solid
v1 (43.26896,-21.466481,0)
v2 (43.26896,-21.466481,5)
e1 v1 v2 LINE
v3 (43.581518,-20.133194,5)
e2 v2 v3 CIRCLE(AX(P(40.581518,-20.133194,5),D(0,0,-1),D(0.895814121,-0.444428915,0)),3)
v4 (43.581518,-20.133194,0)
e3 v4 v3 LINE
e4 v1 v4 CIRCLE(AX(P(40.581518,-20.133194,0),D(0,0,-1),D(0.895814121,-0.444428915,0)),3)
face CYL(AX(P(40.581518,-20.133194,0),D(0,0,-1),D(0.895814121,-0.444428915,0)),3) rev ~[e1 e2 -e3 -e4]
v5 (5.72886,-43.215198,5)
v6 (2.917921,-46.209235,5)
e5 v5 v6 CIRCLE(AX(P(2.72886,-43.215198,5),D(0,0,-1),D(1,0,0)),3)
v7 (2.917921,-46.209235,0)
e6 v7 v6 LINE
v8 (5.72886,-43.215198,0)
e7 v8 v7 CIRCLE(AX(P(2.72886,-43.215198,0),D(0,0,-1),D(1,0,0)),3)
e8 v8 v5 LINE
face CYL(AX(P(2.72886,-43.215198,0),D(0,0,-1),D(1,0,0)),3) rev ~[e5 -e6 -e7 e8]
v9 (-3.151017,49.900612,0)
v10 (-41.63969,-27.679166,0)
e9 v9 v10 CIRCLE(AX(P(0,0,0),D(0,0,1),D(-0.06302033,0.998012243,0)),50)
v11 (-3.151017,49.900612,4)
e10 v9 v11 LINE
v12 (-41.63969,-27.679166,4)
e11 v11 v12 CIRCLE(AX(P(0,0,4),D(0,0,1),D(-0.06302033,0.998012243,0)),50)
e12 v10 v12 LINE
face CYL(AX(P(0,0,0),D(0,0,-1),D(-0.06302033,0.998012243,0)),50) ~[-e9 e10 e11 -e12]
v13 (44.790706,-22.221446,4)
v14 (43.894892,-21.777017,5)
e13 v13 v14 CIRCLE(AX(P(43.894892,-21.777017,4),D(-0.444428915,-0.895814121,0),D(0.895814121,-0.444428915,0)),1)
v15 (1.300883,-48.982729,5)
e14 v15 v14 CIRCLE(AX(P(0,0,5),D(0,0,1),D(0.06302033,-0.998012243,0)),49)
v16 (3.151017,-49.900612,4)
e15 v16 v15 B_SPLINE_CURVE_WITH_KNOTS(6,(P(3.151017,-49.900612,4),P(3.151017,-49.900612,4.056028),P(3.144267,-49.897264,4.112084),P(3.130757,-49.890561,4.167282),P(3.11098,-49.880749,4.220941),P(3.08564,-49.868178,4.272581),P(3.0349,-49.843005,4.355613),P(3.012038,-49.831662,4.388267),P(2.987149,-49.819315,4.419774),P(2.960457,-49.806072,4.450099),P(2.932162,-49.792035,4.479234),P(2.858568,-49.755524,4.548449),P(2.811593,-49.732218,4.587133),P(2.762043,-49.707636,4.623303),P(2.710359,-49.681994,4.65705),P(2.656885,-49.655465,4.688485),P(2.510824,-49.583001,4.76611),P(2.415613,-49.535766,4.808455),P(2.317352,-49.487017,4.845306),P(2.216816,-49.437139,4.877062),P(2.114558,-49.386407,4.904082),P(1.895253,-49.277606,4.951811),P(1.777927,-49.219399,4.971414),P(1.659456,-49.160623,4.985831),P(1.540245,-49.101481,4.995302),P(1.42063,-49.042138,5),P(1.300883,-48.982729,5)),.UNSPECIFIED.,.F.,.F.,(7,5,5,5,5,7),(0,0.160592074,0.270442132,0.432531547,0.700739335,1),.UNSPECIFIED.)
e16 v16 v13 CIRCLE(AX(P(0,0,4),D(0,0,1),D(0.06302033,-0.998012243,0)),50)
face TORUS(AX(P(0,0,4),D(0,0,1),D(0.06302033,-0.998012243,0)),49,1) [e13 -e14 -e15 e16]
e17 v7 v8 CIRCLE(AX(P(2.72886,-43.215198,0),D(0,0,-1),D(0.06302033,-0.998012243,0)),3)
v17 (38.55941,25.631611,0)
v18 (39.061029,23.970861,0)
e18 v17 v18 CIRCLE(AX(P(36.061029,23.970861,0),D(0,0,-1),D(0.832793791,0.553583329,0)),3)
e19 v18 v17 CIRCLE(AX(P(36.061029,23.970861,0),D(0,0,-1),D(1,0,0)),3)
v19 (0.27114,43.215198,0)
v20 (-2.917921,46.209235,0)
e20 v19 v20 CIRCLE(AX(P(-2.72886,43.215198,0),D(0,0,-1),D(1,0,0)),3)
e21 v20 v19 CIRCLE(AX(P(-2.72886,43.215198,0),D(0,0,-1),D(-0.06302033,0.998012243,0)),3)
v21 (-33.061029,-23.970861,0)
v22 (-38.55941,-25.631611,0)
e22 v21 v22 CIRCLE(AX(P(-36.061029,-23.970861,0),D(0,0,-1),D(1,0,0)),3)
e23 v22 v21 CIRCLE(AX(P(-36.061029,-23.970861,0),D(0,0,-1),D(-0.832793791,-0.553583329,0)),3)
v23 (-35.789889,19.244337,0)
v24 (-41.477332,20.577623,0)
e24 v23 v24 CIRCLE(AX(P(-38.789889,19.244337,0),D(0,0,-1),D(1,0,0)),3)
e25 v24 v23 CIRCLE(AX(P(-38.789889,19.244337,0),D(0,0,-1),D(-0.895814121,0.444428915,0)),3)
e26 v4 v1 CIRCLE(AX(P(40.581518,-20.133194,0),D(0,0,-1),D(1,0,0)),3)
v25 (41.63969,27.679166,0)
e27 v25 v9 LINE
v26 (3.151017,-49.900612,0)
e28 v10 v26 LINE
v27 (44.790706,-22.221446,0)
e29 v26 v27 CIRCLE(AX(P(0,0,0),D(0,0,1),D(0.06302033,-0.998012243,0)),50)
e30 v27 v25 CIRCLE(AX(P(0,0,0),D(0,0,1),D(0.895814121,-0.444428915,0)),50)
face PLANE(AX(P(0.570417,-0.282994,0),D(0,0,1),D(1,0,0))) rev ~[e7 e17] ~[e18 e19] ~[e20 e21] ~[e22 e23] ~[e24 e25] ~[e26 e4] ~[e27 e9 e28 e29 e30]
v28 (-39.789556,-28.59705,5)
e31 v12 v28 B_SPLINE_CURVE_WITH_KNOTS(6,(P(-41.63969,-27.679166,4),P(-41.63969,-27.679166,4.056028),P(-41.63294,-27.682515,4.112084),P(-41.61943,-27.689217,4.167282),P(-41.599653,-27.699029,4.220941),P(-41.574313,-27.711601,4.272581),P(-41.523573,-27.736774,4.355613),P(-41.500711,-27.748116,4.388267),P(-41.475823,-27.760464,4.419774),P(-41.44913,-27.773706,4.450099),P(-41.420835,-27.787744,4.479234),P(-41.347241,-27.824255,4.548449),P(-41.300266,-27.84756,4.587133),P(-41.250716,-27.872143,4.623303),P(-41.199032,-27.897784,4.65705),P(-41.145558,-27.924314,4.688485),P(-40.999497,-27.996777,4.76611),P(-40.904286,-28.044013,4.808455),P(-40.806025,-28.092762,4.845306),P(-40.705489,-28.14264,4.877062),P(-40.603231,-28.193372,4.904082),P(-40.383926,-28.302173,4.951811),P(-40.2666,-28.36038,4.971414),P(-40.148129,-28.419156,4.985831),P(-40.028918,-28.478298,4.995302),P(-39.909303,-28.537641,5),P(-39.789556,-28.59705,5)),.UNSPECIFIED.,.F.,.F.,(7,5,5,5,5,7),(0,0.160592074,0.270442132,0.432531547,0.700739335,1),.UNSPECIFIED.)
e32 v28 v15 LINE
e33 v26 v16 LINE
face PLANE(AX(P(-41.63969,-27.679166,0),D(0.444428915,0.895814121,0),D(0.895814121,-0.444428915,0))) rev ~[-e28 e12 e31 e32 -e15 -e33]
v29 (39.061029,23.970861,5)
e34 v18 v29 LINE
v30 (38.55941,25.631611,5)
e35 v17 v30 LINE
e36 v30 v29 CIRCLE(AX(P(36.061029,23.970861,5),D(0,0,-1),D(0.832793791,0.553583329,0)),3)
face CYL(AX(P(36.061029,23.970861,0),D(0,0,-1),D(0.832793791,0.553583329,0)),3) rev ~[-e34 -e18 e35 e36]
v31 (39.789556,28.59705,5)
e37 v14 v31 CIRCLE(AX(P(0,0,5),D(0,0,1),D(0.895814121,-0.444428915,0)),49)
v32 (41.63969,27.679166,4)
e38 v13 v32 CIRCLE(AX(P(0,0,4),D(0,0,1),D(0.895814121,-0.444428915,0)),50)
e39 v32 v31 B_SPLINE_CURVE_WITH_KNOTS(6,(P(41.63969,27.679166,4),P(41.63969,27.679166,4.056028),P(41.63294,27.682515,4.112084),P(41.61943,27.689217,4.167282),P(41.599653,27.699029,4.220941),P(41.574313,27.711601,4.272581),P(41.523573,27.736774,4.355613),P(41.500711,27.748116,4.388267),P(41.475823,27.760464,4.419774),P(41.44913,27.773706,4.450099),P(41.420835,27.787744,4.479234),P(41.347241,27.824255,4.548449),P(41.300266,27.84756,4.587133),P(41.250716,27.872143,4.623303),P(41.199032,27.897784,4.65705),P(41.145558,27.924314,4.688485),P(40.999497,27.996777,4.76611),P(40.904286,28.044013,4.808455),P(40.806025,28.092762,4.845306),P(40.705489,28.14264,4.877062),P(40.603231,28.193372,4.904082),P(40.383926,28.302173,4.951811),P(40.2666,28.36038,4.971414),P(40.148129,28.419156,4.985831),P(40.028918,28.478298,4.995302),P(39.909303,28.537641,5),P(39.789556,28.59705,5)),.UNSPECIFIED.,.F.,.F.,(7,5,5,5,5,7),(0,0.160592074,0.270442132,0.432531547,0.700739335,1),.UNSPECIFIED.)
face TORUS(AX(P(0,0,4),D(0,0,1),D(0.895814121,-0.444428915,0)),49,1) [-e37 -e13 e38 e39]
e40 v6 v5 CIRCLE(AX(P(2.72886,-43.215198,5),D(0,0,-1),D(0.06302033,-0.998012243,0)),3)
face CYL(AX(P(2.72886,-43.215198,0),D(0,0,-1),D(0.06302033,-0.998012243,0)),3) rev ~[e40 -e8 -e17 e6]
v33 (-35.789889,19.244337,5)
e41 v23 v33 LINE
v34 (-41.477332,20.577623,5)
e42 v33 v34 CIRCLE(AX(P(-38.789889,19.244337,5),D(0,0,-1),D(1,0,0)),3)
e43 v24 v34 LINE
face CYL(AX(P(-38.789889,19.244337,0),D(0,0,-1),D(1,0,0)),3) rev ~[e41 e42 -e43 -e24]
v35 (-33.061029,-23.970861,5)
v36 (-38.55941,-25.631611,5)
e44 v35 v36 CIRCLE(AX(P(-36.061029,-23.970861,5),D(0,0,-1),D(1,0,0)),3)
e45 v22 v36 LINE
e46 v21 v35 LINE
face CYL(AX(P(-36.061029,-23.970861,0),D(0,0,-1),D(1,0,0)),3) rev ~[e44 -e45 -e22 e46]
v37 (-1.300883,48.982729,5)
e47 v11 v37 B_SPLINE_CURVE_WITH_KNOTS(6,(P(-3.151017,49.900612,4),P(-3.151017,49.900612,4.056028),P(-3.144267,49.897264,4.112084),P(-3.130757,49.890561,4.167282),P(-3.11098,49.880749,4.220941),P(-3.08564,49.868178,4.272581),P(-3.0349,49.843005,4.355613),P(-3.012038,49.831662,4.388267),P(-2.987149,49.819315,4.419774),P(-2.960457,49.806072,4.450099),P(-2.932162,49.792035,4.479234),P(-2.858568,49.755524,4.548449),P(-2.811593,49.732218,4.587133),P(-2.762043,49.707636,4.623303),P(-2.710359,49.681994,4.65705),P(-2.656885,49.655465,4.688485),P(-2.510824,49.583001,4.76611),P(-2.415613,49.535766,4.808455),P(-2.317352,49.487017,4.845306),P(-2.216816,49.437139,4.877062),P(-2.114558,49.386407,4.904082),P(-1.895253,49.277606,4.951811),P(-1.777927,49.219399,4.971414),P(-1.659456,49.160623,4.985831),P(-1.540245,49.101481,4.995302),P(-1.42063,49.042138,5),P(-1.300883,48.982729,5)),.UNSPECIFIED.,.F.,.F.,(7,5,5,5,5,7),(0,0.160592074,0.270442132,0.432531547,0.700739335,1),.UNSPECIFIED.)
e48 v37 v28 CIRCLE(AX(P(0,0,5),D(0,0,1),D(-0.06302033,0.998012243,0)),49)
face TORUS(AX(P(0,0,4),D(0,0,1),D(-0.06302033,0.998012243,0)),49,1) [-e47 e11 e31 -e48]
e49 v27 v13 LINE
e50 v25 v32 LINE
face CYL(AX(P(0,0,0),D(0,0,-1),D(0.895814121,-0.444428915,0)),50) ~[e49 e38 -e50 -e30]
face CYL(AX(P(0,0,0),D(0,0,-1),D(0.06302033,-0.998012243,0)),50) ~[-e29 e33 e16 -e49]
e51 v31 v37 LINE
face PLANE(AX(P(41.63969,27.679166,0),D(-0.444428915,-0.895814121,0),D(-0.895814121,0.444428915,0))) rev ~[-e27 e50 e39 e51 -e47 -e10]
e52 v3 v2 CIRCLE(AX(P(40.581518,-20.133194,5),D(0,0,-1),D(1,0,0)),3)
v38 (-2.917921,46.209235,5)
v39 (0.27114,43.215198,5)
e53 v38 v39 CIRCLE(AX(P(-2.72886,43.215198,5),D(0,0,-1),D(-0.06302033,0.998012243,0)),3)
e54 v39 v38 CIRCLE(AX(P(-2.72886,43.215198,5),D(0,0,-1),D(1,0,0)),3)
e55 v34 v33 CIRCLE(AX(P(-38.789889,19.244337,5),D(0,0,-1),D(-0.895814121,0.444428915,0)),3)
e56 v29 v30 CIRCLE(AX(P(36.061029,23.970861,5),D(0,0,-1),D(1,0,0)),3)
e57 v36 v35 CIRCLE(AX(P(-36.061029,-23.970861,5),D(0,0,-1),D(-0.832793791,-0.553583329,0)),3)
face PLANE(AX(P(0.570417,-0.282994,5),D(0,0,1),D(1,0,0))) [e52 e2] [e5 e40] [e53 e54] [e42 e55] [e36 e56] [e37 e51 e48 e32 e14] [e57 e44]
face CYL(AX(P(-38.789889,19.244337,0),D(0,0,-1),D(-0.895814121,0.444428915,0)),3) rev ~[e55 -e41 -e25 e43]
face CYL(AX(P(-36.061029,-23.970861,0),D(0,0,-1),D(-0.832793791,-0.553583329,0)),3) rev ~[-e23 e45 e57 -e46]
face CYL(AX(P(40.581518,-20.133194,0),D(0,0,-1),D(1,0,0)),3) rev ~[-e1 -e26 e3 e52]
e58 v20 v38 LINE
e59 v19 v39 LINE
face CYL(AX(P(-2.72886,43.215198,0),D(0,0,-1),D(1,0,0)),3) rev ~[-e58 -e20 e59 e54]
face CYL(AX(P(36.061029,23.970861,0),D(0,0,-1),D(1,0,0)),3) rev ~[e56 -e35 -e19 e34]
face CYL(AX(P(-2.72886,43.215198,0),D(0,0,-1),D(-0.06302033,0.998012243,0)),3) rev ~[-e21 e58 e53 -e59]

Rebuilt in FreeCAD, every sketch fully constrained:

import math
import FreeCAD as App
import Part
import Sketcher
Q = App.Units.Quantity


def edges_at(feature, points):
    """Names of the edges that pass closest to the given points."""
    edges = feature.Shape.Edges
    near = lambda p: min(range(len(edges)), key=lambda i: edges[i].distToShape(Part.Vertex(*p))[0])
    return sorted({f"Edge{near(p) + 1}" for p in points})

doc = App.newDocument("Part")
params = doc.addObject("Spreadsheet::Sheet", "Params")
for row, (alias, value) in enumerate([
    ("sketch1_radius", "50 mm"),
    ("sketch1_radius2", "3 mm"),
    ("sketch1_length", "50 mm"),
    ("pad1_length", "5 mm"),
    ("fillet_radius", "1 mm"),
], start=1):
    params.set(f"A{row}", alias)
    params.set(f"B{row}", "=" + value)
    params.setAlias(f"B{row}", alias)

body = doc.addObject("PartDesign::Body", "Body")

sketch1 = body.newObject("Sketcher::SketchObject", "Sketch")
sketch1.AttachmentSupport = (doc.getObject("XY_Plane"), [""])
sketch1.MapMode = "FlatFace"
sketch1.addGeometry([
    Part.LineSegment(App.Vector(41.63969, 27.679166, 0), App.Vector(-3.151017, 49.900612, 0)),
    Part.ArcOfCircle(Part.Circle(App.Vector(0, 0, 0), App.Vector(0, 0, 1), 50), math.radians(93.613193), math.radians(213.613193)),
    Part.LineSegment(App.Vector(-41.63969, -27.679166, 0), App.Vector(3.151017, -49.900612, 0)),
    Part.ArcOfCircle(Part.Circle(App.Vector(0, 0, 0), App.Vector(0, 0, 1), 50), math.radians(-86.386807), math.radians(-26.386807)),
    Part.ArcOfCircle(Part.Circle(App.Vector(0, 0, 0), App.Vector(0, 0, 1), 50), math.radians(-26.386807), math.radians(33.613193)),
    Part.ArcOfCircle(Part.Circle(App.Vector(-36.061029, -23.970861, 0), App.Vector(0, 0, 1), 3), math.radians(0), math.radians(213.613193)),
    Part.ArcOfCircle(Part.Circle(App.Vector(-36.061029, -23.970861, 0), App.Vector(0, 0, 1), 3), math.radians(-146.386807), math.radians(0)),
    Part.ArcOfCircle(Part.Circle(App.Vector(2.72886, -43.215198, 0), App.Vector(0, 0, 1), 3), math.radians(0), math.radians(273.613193)),
    Part.ArcOfCircle(Part.Circle(App.Vector(2.72886, -43.215198, 0), App.Vector(0, 0, 1), 3), math.radians(-86.386807), math.radians(0)),
    Part.ArcOfCircle(Part.Circle(App.Vector(40.581518, -20.133194, 0), App.Vector(0, 0, 1), 3), math.radians(0), math.radians(333.613193)),
    Part.ArcOfCircle(Part.Circle(App.Vector(40.581518, -20.133194, 0), App.Vector(0, 0, 1), 3), math.radians(-26.386807), math.radians(0)),
    Part.ArcOfCircle(Part.Circle(App.Vector(-38.789889, 19.244337, 0), App.Vector(0, 0, 1), 3), math.radians(153.613193), math.radians(360)),
    Part.ArcOfCircle(Part.Circle(App.Vector(-38.789889, 19.244337, 0), App.Vector(0, 0, 1), 3), math.radians(0), math.radians(153.613193)),
    Part.ArcOfCircle(Part.Circle(App.Vector(-2.72886, 43.215198, 0), App.Vector(0, 0, 1), 3), math.radians(0), math.radians(93.613193)),
    Part.ArcOfCircle(Part.Circle(App.Vector(-2.72886, 43.215198, 0), App.Vector(0, 0, 1), 3), math.radians(93.613193), math.radians(360)),
    Part.ArcOfCircle(Part.Circle(App.Vector(36.061029, 23.970861, 0), App.Vector(0, 0, 1), 3), math.radians(0), math.radians(33.613193)),
    Part.ArcOfCircle(Part.Circle(App.Vector(36.061029, 23.970861, 0), App.Vector(0, 0, 1), 3), math.radians(33.613193), math.radians(360)),
], False)
sketch1.addConstraint([
    Sketcher.Constraint("Coincident", 0, 2, 1, 1),
    Sketcher.Constraint("Coincident", 1, 2, 2, 1),
    Sketcher.Constraint("Coincident", 2, 2, 3, 1),
    Sketcher.Constraint("Tangent", 3, 2, 4, 1),
    Sketcher.Constraint("Coincident", 4, 2, 0, 1),
    Sketcher.Constraint("Tangent", 5, 1, 6, 2),
    Sketcher.Constraint("Coincident", 6, 1, 5, 2),
    Sketcher.Constraint("Tangent", 7, 1, 8, 2),
    Sketcher.Constraint("Coincident", 8, 1, 7, 2),
    Sketcher.Constraint("Tangent", 9, 1, 10, 2),
    Sketcher.Constraint("Coincident", 10, 1, 9, 2),
    Sketcher.Constraint("Tangent", 11, 1, 12, 2),
    Sketcher.Constraint("Coincident", 12, 1, 11, 2),
    Sketcher.Constraint("Tangent", 13, 1, 14, 2),
    Sketcher.Constraint("Coincident", 14, 1, 13, 2),
    Sketcher.Constraint("Tangent", 15, 1, 16, 2),
    Sketcher.Constraint("Coincident", 16, 1, 15, 2),
    Sketcher.Constraint("Coincident", 1, 3, -1, 1),
    Sketcher.Constraint("Coincident", 3, 3, -1, 1),
    Sketcher.Constraint("Equal", 1, 3),
    Sketcher.Constraint("Equal", 3, 4),
    Sketcher.Constraint("Equal", 6, 7),
    Sketcher.Constraint("Equal", 8, 9),
    Sketcher.Constraint("Equal", 10, 11),
    Sketcher.Constraint("Equal", 12, 13),
    Sketcher.Constraint("Equal", 14, 15),
    Sketcher.Constraint("Symmetric", 7, 3, 13, 3, -1, 1),
    Sketcher.Constraint("Symmetric", 5, 3, 15, 3, -1, 1),
    Sketcher.Constraint("Parallel", 0, 2),
    Sketcher.Constraint("Horizontal", 6, 3, 5, 1),
    Sketcher.Constraint("Horizontal", 8, 3, 7, 1),
    Sketcher.Constraint("Horizontal", 10, 3, 9, 1),
    Sketcher.Constraint("Horizontal", 11, 3, 12, 1),
    Sketcher.Constraint("Horizontal", 14, 3, 13, 1),
    Sketcher.Constraint("Horizontal", 16, 3, 15, 1),
    Sketcher.Constraint("Equal", 0, 2),
    Sketcher.Constraint("Radius", 1, Q("50 mm")),
    Sketcher.Constraint("Radius", 5, Q("3 mm")),
    Sketcher.Constraint("Distance", 0, Q("50 mm")),
    Sketcher.Constraint("DistanceX", 1, 2, 11, 3, Q("2.8498 mm")),
    Sketcher.Constraint("DistanceX", 2, 2, 10, 3, Q("37.430501 mm")),
    Sketcher.Constraint("DistanceX", 7, 1, 10, 1, Q("37.5401 mm")),
    Sketcher.Constraint("DistanceY", 12, 1, 14, 1, Q("26.964898 mm")),
    Sketcher.Constraint("DistanceX", 5, 3, -1, 1, Q("36.061029 mm")),
    Sketcher.Constraint("DistanceY", 5, 3, -1, 1, Q("23.970861 mm")),
    Sketcher.Constraint("DistanceX", -1, 1, 7, 3, Q("2.72886 mm")),
    Sketcher.Constraint("DistanceX", 11, 3, -1, 1, Q("38.789889 mm")),
    Sketcher.Constraint("DistanceX", 6, 1, -1, 1, Q("38.55941 mm")),
    Sketcher.Constraint("DistanceX", -1, 1, 8, 1, Q("2.917921 mm")),
    Sketcher.Constraint("DistanceY", 10, 1, -1, 1, Q("21.466481 mm")),
    Sketcher.Constraint("DistanceX", 11, 1, -1, 1, Q("41.477332 mm")),
    Sketcher.Constraint("DistanceX", 14, 1, -1, 1, Q("2.917921 mm")),
    Sketcher.Constraint("DistanceX", -1, 1, 16, 1, Q("38.55941 mm")),
    Sketcher.Constraint("DistanceY", 7, 3, 1, 2, Q("15.536031 mm")),
    Sketcher.Constraint("DistanceX", 9, 3, 3, 2, Q("4.209189 mm")),
])
sketch1.setExpression("Constraints[36]", "Params.sketch1_radius")
sketch1.setExpression("Constraints[37]", "Params.sketch1_radius2")
sketch1.setExpression("Constraints[38]", "Params.sketch1_length")
pad1 = body.newObject("PartDesign::Pad", "Pad")
pad1.Profile = sketch1
pad1.setExpression("Length", "Params.pad1_length")
doc.recompute()

fillet = body.newObject("PartDesign::Fillet", "Fillet")
fillet.Base = (pad1, edges_at(pad1, [(-44.791, 22.221, 5), (27.679, -41.64, 5)]))
fillet.setExpression("Radius", "Params.fillet_radius")

doc.recompute()
